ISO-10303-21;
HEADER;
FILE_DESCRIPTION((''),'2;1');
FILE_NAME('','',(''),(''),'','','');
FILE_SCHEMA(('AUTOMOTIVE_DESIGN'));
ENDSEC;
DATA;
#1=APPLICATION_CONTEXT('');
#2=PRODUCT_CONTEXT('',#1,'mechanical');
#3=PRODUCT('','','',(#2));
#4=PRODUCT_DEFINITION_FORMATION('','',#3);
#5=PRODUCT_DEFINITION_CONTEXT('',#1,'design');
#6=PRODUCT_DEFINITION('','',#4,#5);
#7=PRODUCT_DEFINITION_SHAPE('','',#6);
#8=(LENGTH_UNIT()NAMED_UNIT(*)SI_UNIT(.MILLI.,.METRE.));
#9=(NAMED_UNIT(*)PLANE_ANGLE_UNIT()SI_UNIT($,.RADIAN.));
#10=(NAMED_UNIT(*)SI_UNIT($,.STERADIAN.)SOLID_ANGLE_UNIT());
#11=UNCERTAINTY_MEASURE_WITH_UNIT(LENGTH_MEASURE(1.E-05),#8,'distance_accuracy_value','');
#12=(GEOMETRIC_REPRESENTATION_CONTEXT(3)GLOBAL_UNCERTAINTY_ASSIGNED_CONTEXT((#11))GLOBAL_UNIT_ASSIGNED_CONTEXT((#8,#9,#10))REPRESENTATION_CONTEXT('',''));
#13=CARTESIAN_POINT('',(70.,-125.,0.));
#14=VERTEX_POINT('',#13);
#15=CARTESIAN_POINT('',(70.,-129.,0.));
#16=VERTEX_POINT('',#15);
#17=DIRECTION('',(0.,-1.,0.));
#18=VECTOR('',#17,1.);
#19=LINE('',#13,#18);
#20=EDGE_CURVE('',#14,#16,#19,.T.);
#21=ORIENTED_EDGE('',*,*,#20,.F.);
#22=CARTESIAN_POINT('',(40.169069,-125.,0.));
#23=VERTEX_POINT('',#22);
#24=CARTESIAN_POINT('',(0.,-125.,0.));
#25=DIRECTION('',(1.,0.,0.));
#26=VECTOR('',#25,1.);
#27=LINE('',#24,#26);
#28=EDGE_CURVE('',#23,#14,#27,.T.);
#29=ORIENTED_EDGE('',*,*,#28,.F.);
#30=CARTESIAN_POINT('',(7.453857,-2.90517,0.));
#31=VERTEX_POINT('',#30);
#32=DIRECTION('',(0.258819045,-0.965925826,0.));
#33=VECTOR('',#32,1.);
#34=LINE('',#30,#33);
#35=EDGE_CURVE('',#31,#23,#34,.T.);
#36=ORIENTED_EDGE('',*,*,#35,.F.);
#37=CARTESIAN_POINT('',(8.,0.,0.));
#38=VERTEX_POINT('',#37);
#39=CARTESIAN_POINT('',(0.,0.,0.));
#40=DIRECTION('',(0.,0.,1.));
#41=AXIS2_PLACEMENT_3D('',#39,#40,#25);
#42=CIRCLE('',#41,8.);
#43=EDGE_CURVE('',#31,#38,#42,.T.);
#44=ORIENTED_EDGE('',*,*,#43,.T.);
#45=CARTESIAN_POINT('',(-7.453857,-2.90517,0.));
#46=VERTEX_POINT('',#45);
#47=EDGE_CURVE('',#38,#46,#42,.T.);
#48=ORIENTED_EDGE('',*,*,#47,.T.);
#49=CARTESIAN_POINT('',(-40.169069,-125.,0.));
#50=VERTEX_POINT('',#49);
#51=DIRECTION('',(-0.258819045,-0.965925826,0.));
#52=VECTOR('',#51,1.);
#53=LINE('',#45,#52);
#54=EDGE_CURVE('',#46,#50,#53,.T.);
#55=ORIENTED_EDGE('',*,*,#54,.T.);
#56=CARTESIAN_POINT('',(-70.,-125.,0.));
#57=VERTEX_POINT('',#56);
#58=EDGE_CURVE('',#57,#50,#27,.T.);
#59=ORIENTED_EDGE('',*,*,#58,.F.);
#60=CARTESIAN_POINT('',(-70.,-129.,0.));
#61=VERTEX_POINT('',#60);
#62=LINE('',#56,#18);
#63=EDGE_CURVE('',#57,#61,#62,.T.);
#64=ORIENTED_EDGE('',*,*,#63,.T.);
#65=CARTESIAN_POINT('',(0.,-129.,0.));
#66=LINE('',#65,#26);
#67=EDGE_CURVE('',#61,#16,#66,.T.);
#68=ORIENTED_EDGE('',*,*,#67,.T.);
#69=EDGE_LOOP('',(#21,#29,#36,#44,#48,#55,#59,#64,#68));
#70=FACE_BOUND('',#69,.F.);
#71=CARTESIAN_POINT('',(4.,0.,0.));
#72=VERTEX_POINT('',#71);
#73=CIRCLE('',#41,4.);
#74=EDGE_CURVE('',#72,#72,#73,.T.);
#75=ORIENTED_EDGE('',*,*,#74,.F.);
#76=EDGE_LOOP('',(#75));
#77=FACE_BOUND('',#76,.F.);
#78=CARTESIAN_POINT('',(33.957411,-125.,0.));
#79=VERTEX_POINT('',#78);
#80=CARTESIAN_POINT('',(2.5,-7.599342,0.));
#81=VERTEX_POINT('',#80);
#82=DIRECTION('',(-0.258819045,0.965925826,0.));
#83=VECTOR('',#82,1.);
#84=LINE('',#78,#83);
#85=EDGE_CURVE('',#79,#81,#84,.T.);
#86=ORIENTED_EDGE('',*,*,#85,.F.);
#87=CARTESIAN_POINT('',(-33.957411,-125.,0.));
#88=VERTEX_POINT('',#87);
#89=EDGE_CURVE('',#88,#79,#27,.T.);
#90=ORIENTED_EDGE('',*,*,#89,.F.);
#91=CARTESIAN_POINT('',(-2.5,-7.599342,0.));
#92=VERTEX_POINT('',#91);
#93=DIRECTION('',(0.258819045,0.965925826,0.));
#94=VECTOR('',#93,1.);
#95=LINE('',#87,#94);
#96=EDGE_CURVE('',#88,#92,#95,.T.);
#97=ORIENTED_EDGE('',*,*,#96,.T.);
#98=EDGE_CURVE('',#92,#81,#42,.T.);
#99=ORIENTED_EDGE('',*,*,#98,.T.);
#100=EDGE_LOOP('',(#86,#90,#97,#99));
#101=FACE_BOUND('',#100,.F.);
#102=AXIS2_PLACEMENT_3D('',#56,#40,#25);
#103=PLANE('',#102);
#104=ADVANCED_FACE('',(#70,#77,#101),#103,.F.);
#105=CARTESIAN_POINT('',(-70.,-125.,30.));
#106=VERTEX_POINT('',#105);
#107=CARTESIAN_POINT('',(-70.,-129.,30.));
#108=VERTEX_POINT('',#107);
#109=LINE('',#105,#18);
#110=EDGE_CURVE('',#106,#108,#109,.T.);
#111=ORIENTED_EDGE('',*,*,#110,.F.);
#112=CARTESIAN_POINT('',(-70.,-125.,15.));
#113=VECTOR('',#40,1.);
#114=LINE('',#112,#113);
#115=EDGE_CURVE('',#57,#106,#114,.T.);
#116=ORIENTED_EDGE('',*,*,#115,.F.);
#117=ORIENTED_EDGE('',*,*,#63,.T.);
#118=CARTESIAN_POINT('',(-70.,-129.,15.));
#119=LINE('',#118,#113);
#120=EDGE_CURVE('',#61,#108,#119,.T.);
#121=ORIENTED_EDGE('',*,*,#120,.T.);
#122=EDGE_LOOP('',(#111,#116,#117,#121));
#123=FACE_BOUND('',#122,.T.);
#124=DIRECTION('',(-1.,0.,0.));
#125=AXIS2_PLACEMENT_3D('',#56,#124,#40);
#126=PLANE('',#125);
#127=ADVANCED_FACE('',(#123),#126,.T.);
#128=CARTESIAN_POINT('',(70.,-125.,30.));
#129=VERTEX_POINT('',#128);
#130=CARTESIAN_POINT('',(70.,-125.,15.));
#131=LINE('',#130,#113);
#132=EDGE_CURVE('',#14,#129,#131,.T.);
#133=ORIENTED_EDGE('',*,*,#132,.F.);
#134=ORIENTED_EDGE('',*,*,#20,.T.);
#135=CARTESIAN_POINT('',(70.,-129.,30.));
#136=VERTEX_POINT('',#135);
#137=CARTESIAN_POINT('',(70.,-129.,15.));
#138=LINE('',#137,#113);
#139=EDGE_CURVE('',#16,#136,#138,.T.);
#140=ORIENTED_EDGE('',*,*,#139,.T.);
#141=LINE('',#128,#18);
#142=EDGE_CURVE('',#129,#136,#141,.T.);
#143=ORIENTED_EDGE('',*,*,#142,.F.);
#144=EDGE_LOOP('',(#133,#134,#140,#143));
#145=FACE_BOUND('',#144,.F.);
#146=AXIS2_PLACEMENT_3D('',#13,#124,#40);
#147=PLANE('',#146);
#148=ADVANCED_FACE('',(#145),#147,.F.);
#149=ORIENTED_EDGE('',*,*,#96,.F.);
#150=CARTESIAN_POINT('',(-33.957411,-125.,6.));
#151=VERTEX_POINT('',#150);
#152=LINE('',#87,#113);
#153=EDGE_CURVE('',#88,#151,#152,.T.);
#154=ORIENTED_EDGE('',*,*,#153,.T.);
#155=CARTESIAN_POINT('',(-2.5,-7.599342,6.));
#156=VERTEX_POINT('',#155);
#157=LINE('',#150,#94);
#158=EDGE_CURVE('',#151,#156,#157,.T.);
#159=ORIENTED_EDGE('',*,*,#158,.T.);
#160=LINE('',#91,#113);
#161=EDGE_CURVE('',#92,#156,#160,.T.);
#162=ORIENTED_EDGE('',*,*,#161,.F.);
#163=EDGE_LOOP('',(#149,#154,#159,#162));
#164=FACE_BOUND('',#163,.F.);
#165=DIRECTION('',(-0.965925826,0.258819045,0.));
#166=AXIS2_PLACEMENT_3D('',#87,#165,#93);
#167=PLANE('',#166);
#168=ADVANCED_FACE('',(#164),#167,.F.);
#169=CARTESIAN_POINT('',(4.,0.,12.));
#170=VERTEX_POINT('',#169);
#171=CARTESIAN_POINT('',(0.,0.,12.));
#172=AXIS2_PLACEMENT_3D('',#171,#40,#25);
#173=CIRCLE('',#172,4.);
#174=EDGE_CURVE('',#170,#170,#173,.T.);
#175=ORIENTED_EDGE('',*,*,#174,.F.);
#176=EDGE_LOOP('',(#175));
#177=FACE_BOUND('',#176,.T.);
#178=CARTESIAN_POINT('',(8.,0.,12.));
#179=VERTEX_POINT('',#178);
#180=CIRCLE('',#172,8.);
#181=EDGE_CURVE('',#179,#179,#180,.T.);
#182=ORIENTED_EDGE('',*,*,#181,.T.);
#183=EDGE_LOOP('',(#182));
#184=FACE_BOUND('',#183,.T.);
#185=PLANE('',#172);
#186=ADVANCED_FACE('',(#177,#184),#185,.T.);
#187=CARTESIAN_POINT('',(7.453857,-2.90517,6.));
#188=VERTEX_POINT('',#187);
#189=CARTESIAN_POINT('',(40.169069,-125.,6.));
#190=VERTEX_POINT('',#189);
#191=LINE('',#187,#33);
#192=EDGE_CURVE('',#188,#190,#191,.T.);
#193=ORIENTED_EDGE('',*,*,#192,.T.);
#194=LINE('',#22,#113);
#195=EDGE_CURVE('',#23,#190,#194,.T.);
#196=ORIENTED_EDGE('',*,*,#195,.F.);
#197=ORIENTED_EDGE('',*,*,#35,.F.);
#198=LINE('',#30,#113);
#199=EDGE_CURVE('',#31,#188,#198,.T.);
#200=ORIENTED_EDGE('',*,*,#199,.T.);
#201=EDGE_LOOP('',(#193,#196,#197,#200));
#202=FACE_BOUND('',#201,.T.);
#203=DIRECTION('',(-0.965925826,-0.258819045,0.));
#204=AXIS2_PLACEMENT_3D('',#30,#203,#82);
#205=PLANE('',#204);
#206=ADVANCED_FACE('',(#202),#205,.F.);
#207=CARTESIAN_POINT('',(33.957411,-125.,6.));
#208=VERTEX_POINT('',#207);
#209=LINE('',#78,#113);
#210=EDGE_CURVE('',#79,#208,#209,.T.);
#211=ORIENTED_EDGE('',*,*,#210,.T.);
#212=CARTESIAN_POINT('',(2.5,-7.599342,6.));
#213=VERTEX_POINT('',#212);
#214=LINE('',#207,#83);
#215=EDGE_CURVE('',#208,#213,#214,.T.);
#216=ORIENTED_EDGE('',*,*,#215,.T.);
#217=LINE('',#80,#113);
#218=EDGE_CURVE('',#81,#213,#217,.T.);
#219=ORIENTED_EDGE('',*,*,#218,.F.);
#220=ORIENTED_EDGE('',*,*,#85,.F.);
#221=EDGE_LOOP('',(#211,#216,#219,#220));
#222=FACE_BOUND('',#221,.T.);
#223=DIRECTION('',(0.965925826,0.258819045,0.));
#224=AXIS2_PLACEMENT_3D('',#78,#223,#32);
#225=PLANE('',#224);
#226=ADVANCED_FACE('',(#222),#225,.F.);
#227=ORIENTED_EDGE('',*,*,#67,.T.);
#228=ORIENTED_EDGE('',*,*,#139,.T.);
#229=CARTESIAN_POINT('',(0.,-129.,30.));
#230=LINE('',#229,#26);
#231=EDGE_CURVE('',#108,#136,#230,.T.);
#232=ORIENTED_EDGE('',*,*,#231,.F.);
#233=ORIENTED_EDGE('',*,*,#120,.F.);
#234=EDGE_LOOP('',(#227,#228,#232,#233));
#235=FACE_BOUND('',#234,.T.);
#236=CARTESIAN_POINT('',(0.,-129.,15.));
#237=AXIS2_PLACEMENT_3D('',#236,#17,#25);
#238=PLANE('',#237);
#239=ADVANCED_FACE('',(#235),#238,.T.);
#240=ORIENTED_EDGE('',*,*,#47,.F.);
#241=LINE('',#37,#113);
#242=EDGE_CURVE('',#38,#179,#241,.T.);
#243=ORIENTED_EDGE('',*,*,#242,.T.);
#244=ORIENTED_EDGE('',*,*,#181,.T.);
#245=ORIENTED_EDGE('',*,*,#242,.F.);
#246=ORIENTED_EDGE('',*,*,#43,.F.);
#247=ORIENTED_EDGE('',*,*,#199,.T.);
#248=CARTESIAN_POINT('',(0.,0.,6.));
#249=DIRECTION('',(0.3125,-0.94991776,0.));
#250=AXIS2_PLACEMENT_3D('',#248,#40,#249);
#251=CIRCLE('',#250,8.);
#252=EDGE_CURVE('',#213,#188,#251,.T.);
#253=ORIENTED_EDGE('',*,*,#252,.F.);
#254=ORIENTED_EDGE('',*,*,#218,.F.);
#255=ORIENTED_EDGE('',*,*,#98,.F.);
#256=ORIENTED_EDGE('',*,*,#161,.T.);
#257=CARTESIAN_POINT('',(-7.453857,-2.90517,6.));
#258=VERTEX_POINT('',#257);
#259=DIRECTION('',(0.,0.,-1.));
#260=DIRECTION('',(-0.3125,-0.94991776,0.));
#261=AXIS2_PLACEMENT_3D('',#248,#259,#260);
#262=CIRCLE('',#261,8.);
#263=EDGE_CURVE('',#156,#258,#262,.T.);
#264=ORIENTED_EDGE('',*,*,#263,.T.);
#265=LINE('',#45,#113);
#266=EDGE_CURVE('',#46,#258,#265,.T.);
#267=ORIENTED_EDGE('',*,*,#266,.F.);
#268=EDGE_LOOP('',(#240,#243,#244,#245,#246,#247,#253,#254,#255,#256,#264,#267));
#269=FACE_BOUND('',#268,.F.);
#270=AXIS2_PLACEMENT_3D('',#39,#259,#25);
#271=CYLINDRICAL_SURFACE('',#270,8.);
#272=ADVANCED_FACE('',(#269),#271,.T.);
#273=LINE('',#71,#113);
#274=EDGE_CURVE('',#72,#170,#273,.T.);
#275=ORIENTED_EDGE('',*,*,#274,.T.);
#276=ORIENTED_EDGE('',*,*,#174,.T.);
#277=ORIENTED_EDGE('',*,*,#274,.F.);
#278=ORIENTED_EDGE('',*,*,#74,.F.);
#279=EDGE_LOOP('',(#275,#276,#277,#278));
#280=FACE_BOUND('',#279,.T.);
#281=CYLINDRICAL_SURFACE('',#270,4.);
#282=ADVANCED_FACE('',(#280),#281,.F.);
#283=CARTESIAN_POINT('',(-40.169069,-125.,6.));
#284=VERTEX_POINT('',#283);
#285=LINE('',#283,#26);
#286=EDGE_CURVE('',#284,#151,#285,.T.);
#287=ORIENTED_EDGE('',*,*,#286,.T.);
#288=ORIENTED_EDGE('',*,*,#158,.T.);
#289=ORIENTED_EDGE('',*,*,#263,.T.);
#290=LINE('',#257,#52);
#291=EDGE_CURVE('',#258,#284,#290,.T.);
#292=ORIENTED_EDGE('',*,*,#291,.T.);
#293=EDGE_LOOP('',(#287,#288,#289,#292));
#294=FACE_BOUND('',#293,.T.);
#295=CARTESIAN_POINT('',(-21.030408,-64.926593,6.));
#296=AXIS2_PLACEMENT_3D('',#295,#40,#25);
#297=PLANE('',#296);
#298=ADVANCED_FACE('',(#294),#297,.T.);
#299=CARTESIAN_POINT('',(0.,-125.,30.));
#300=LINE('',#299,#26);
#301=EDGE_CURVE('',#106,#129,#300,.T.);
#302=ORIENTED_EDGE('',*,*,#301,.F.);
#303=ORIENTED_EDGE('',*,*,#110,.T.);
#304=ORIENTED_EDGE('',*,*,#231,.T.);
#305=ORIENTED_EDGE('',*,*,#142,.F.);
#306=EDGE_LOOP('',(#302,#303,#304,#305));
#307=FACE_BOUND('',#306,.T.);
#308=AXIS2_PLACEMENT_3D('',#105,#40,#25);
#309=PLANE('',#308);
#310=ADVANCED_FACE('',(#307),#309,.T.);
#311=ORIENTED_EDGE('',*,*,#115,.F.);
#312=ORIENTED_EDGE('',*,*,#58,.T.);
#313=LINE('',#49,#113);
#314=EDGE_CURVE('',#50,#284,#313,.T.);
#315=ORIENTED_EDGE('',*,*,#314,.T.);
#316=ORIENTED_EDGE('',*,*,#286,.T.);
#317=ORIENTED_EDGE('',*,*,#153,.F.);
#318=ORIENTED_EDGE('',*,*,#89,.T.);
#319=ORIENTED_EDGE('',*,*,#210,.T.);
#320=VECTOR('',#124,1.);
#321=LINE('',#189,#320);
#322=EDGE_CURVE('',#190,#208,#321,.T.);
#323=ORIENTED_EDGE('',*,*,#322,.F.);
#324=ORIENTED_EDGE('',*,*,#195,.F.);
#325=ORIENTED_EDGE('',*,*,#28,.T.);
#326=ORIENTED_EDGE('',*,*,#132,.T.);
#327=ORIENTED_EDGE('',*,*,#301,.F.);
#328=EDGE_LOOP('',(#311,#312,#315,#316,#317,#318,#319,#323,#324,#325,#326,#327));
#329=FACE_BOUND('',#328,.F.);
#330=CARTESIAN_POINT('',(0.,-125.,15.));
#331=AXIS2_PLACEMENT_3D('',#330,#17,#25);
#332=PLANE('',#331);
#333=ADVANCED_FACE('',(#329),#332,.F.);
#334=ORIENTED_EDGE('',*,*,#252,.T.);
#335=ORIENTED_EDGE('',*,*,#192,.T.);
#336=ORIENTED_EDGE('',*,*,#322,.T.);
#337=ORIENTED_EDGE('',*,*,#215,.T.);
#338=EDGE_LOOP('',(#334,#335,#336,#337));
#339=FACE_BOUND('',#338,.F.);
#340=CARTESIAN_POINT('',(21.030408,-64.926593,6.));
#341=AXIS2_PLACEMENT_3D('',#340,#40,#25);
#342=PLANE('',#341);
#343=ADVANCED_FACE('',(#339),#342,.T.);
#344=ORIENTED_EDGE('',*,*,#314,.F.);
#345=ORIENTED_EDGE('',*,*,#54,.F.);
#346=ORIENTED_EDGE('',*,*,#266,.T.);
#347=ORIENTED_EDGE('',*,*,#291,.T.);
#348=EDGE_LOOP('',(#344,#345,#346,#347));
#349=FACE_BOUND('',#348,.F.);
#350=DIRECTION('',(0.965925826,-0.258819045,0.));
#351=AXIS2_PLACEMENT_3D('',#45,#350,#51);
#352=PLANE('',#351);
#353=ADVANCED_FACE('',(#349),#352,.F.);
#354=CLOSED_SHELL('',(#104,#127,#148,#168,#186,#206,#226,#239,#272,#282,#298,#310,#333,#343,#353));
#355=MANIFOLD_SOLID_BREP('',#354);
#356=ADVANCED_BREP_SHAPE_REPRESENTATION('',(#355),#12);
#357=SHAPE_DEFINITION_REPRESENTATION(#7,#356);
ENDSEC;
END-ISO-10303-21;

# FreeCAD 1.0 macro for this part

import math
import FreeCAD as App
import Part
import Sketcher
from FreeCAD import Vector
Q = App.Units.Quantity

doc = App.newDocument("Part")
body = doc.addObject("PartDesign::Body", "Body")

# Sketch on XY plane
sketch1 = doc.addObject("Sketcher::SketchObject", "Sketch")
body.addObject(sketch1)
sketch1.AttachmentSupport = (doc.XY_Plane, [""])
sketch1.MapMode = "FlatFace"
sketch1.addGeometry([
    Part.Circle(Vector(0, 0, 0), Vector(0, 0, 1), 8),
    Part.Circle(Vector(0, 0, 0), Vector(0, 0, 1), 4),
], False)
sketch1.addConstraint([
    Sketcher.Constraint("Coincident", 0, 3, -1, 1),
    Sketcher.Constraint("Coincident", 1, 3, -1, 1),
    Sketcher.Constraint("Diameter", 0, Q("16 mm")),
    Sketcher.Constraint("Diameter", 1, Q("8 mm")),
])
pad1 = doc.addObject("PartDesign::Pad", "Pad")
body.addObject(pad1)
pad1.Profile = sketch1
pad1.Length = 12

# Sketch on XY plane
sketch2 = doc.addObject("Sketcher::SketchObject", "Sketch001")
body.addObject(sketch2)
sketch2.AttachmentSupport = (doc.XY_Plane, [""])
sketch2.MapMode = "FlatFace"
sketch2.addGeometry([
    Part.LineSegment(Vector(-40, -125, 0), Vector(-34, -125, 0)),
    Part.LineSegment(Vector(-34, -125, 0), Vector(-2, -8, 0)),
    Part.ArcOfCircle(Part.Circle(Vector(0, 0, 0), Vector(0, 0, 1), 8), math.radians(-159), math.radians(-108)),
    Part.LineSegment(Vector(-7, -3, 0), Vector(-40, -125, 0)),
], False)
sketch2.addConstraint([
    Sketcher.Constraint("Coincident", 0, 2, 1, 1),
    Sketcher.Constraint("Coincident", 1, 2, 2, 2),
    Sketcher.Constraint("Coincident", 2, 1, 3, 1),
    Sketcher.Constraint("Coincident", 3, 2, 0, 1),
    Sketcher.Constraint("Horizontal", 0),
    Sketcher.Constraint("Coincident", 2, 3, -1, 1),
    Sketcher.Constraint("Parallel", 1, 3),
    Sketcher.Constraint("Radius", 2, Q("8 mm")),
    Sketcher.Constraint("Angle", 1, Q("75 deg")),
    Sketcher.Constraint("DistanceY", 0, 2, -1, 1, Q("125 mm")),
    Sketcher.Constraint("DistanceX", 1, 2, -1, 1, Q("2.5 mm")),
    Sketcher.Constraint("Distance", 3, Q("126.40187 mm")),
])
pad2 = doc.addObject("PartDesign::Pad", "Pad001")
body.addObject(pad2)
pad2.Profile = sketch2
pad2.Length = 6
doc.recompute()

mirrored = doc.addObject("PartDesign::Mirrored", "Mirrored")
body.addObject(mirrored)
mirrored.Originals = [pad2]
mirrored.MirrorPlane = (doc.YZ_Plane, [""])
body.Tip = mirrored

# Sketch on XZ plane
sketch3 = doc.addObject("Sketcher::SketchObject", "Sketch002")
body.addObject(sketch3)
sketch3.AttachmentSupport = (doc.XZ_Plane, [""])
sketch3.MapMode = "FlatFace"
sketch3.AttachmentOffset = App.Placement(Vector(0, 0, 125), App.Rotation())
sketch3.addGeometry([
    Part.LineSegment(Vector(-70, 30, 0), Vector(-70, 0, 0)),
    Part.LineSegment(Vector(-70, 0, 0), Vector(70, 0, 0)),
    Part.LineSegment(Vector(70, 0, 0), Vector(70, 30, 0)),
    Part.LineSegment(Vector(70, 30, 0), Vector(-70, 30, 0)),
], False)
sketch3.addConstraint([
    Sketcher.Constraint("Coincident", 0, 2, 1, 1),
    Sketcher.Constraint("Coincident", 1, 2, 2, 1),
    Sketcher.Constraint("Coincident", 2, 2, 3, 1),
    Sketcher.Constraint("Coincident", 3, 2, 0, 1),
    Sketcher.Constraint("Vertical", 0),
    Sketcher.Constraint("Horizontal", 1),
    Sketcher.Constraint("Vertical", 2),
    Sketcher.Constraint("Horizontal", 3),
    Sketcher.Constraint("Symmetric", 0, 2, 1, 2, -1, 1),
    Sketcher.Constraint("DistanceX", 1, 1, 1, 2, Q("140 mm")),
    Sketcher.Constraint("DistanceY", 0, 2, 0, 1, Q("30 mm")),
])
pad3 = doc.addObject("PartDesign::Pad", "Pad002")
body.addObject(pad3)
pad3.Profile = sketch3
pad3.Length = 4

doc.recompute()
